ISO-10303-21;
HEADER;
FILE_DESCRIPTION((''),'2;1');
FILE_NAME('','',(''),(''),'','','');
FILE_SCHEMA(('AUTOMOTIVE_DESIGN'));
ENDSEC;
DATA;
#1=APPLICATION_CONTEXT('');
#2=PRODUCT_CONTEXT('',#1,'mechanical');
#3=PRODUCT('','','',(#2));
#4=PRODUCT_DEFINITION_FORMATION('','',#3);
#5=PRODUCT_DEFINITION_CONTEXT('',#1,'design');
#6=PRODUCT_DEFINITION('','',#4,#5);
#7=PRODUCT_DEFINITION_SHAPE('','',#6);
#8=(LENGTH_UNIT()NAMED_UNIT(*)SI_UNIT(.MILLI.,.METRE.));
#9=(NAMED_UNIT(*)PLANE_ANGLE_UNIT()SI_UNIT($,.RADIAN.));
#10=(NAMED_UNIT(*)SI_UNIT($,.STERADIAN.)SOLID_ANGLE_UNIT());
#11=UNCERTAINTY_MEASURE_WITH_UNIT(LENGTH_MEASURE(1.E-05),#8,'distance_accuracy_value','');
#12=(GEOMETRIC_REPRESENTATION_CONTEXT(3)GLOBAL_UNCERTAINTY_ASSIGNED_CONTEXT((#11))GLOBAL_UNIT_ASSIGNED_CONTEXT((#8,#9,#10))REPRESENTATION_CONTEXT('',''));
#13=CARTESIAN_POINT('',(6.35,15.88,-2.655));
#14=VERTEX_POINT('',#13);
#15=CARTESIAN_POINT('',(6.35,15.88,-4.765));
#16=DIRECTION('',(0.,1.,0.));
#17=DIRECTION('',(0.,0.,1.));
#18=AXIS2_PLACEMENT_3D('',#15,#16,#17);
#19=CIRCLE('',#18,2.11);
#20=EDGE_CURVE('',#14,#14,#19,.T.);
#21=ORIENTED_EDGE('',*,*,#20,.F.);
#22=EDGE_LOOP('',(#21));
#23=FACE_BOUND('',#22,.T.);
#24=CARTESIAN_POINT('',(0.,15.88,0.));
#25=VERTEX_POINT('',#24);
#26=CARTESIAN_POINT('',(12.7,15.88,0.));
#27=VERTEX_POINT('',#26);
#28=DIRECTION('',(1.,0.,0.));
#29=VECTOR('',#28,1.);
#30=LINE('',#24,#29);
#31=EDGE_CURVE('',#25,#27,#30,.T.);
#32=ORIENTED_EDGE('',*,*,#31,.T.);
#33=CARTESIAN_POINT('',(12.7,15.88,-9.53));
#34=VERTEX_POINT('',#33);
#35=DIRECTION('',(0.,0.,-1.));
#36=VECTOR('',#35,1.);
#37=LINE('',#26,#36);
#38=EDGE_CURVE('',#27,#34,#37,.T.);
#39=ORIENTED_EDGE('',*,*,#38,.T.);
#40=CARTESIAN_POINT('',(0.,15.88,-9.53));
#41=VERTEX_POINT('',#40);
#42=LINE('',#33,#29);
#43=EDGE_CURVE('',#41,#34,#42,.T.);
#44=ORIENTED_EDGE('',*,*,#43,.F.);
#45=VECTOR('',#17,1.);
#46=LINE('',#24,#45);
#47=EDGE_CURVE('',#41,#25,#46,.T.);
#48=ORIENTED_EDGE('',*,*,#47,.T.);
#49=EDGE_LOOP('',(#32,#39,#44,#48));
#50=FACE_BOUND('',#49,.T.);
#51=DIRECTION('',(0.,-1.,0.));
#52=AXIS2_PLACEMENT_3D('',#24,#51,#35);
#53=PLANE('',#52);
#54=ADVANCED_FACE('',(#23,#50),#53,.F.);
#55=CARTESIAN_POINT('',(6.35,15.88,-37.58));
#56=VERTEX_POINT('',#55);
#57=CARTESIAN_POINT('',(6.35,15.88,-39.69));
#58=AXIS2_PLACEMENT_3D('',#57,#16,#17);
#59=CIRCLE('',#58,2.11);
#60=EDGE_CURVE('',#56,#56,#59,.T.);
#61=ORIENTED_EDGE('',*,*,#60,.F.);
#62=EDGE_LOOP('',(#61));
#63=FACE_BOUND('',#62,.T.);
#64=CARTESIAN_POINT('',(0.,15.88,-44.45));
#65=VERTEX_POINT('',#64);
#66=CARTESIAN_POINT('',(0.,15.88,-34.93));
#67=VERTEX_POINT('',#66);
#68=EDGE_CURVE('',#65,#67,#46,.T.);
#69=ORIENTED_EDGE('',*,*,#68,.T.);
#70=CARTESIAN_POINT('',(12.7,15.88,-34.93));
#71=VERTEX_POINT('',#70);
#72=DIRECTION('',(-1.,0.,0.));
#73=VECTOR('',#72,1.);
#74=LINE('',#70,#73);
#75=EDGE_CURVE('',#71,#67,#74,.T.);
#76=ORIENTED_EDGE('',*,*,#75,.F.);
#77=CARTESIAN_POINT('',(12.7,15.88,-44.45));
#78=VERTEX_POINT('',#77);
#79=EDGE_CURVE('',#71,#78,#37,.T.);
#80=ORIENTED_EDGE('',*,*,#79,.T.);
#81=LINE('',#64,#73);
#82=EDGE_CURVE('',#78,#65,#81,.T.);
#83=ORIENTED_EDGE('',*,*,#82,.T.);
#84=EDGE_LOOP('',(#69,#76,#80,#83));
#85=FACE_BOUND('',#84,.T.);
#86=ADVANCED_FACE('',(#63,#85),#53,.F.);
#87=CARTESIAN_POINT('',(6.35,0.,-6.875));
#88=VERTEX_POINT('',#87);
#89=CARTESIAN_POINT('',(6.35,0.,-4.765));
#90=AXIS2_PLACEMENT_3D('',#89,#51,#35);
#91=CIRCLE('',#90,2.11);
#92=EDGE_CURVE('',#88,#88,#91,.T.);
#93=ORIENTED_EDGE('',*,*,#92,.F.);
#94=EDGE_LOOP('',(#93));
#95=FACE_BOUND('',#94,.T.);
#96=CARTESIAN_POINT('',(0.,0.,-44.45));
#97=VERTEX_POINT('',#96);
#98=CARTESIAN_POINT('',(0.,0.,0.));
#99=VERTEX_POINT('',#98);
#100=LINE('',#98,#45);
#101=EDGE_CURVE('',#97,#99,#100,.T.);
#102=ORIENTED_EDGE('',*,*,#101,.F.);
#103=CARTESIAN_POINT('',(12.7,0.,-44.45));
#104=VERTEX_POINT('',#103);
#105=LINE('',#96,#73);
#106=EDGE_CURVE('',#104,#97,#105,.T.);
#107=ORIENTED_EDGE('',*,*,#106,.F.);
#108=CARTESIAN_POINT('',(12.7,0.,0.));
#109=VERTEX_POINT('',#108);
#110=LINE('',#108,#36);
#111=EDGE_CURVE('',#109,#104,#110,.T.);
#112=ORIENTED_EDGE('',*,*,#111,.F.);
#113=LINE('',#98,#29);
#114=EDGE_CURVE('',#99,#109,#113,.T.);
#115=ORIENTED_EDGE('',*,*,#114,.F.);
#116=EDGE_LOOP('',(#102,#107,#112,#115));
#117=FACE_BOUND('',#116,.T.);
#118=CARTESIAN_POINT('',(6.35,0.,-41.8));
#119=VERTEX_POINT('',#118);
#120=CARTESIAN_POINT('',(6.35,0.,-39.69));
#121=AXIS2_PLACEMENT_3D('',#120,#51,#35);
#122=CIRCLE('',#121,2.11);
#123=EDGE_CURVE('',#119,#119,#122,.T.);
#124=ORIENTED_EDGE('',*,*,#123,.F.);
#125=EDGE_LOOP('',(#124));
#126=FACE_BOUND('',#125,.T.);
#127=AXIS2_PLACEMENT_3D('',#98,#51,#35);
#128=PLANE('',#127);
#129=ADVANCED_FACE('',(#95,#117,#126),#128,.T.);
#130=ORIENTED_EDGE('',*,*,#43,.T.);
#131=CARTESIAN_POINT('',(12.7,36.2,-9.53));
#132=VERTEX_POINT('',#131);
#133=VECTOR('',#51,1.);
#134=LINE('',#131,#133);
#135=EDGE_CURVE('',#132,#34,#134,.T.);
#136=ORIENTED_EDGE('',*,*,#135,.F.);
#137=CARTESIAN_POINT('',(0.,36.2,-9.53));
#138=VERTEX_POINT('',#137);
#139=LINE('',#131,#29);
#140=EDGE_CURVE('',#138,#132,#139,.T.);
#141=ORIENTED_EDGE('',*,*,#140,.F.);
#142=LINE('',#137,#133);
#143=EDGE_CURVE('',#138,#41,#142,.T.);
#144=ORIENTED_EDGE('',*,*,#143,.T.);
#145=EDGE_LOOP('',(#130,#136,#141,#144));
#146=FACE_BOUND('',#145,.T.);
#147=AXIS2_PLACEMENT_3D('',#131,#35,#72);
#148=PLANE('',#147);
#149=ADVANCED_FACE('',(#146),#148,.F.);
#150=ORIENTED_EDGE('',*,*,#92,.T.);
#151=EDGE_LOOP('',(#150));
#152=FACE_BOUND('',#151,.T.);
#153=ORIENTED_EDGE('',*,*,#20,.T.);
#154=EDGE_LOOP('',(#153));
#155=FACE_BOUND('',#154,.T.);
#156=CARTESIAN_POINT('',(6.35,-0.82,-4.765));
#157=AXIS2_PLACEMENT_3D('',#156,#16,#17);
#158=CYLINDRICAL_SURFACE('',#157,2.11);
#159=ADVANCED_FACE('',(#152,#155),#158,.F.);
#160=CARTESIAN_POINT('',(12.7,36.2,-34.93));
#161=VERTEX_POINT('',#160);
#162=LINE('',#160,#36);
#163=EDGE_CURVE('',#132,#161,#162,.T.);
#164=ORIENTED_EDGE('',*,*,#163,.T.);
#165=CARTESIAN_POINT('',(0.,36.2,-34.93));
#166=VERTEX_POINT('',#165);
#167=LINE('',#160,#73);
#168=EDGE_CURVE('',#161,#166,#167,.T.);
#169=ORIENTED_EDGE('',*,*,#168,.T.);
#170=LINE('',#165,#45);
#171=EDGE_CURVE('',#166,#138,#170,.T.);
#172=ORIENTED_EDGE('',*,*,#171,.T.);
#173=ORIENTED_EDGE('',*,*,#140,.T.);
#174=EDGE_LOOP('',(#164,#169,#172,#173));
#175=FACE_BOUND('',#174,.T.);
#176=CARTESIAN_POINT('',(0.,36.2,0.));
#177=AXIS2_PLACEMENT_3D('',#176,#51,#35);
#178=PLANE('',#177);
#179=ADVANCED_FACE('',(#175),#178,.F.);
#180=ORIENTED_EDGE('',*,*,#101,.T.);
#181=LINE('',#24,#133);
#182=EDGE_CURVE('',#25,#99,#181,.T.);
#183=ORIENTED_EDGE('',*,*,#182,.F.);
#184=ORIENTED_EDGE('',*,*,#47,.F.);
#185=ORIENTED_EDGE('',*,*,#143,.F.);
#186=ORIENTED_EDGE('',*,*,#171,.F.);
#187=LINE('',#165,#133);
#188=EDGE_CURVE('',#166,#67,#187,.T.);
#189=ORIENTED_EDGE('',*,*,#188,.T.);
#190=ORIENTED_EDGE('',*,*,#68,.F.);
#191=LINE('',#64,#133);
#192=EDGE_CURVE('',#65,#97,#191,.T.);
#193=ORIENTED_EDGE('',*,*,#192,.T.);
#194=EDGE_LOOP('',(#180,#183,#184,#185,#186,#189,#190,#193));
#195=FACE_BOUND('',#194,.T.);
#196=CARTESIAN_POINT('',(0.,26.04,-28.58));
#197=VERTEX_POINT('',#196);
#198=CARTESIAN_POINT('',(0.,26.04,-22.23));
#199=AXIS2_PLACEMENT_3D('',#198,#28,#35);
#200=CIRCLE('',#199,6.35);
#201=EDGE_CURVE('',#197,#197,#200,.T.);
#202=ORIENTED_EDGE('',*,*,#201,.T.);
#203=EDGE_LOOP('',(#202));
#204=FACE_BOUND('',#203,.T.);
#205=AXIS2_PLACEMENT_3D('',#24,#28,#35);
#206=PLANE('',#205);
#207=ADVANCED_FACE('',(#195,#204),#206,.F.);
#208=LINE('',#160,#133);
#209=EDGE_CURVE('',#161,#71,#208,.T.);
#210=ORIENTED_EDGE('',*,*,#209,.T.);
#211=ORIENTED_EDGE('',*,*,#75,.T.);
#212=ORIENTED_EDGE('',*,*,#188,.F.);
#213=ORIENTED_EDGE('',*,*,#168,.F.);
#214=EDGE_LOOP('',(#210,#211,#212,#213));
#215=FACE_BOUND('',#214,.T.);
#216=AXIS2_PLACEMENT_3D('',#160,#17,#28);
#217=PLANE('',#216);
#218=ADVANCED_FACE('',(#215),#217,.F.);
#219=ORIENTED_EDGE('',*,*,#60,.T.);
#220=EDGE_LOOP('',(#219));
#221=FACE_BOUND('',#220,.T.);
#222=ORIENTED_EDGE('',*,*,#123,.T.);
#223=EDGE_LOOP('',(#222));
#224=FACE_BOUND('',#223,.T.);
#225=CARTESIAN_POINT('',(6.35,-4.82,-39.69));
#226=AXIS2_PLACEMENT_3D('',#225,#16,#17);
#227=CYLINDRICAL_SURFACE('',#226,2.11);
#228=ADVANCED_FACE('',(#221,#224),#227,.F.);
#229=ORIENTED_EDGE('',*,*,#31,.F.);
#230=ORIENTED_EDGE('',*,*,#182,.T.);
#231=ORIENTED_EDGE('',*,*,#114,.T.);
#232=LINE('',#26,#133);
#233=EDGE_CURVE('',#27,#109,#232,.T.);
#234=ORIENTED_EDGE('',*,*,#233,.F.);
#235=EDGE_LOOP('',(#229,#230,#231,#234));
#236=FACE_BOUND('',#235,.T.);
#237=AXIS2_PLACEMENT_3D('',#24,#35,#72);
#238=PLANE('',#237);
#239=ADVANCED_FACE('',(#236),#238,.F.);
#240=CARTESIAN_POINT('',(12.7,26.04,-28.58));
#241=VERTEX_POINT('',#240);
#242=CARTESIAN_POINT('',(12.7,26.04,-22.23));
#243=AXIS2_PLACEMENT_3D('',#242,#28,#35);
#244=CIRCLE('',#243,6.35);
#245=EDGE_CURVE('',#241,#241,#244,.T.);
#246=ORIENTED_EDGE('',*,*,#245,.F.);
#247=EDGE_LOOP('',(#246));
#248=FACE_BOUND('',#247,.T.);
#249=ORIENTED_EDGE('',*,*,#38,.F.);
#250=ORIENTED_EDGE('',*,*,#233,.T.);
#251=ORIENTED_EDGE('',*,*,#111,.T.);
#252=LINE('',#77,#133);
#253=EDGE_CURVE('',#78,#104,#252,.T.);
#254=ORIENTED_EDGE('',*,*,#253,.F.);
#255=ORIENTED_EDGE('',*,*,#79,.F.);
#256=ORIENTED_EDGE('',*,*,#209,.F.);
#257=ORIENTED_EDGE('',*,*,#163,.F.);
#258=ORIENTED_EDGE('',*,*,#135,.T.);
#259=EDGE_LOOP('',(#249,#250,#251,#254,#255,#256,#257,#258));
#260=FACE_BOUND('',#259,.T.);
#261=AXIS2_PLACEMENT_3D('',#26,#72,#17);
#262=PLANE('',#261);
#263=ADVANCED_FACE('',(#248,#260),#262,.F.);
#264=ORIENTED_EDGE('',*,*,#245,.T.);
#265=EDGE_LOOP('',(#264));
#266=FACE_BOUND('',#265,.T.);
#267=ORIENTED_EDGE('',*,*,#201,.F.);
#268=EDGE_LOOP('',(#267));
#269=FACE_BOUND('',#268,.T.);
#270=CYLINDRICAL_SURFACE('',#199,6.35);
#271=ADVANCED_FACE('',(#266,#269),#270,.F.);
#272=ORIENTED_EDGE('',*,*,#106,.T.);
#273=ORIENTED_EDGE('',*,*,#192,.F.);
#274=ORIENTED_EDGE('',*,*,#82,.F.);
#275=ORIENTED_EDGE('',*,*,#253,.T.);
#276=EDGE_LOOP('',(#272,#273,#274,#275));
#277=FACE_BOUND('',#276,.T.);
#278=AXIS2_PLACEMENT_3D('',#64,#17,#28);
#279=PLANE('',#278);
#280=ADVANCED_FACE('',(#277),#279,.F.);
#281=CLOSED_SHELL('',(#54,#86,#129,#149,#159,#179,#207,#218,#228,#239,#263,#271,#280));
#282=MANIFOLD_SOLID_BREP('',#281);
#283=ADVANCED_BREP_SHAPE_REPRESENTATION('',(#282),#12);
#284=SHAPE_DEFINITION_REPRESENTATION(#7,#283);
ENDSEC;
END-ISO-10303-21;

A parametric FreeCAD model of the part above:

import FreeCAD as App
import Part
import Sketcher
from FreeCAD import Vector
Q = App.Units.Quantity

doc = App.newDocument("Part")
body = doc.addObject("PartDesign::Body", "Body")

# Sketch on XZ plane
sketch1 = body.newObject("Sketcher::SketchObject", "Sketch")
sketch1.AttachmentSupport = (doc.getObject("XZ_Plane"), [""])
sketch1.MapMode = "FlatFace"
sketch1.addGeometry([
    Part.LineSegment(Vector(0, -44, 0), Vector(0, 0, 0)),
    Part.LineSegment(Vector(0, 0, 0), Vector(13, 0, 0)),
    Part.LineSegment(Vector(13, 0, 0), Vector(13, -44, 0)),
    Part.LineSegment(Vector(13, -44, 0), Vector(0, -44, 0)),
], False)
sketch1.addConstraint([
    Sketcher.Constraint("Coincident", 0, 2, 1, 1),
    Sketcher.Constraint("Coincident", 1, 2, 2, 1),
    Sketcher.Constraint("Coincident", 2, 2, 3, 1),
    Sketcher.Constraint("Coincident", 3, 2, 0, 1),
    Sketcher.Constraint("Vertical", 0),
    Sketcher.Constraint("Horizontal", 1),
    Sketcher.Constraint("Vertical", 2),
    Sketcher.Constraint("Horizontal", 3),
    Sketcher.Constraint("Coincident", 0, 2, -1, 1),
    Sketcher.Constraint("DistanceX", 1, 1, 1, 2, Q("0.5 in")),
    Sketcher.Constraint("DistanceY", 0, 1, 0, 2, Q("1.75 in")),
])
pad1 = body.newObject("PartDesign::Pad", "Pad")
pad1.Profile = sketch1
pad1.Length = 15.88
pad1.Reversed = True

# Sketch on XZ plane
sketch2 = body.newObject("Sketcher::SketchObject", "Sketch001")
sketch2.AttachmentSupport = (doc.getObject("XZ_Plane"), [""])
sketch2.MapMode = "FlatFace"
sketch2.AttachmentOffset = App.Placement(Vector(0, 0, -15.88), App.Rotation())
sketch2.addGeometry([
    Part.LineSegment(Vector(0, -35, 0), Vector(0, -10, 0)),
    Part.LineSegment(Vector(0, -10, 0), Vector(13, -10, 0)),
    Part.LineSegment(Vector(13, -10, 0), Vector(13, -35, 0)),
    Part.LineSegment(Vector(13, -35, 0), Vector(0, -35, 0)),
], False)
sketch2.addConstraint([
    Sketcher.Constraint("Coincident", 0, 2, 1, 1),
    Sketcher.Constraint("Coincident", 1, 2, 2, 1),
    Sketcher.Constraint("Coincident", 2, 2, 3, 1),
    Sketcher.Constraint("Coincident", 3, 2, 0, 1),
    Sketcher.Constraint("Vertical", 0),
    Sketcher.Constraint("Horizontal", 1),
    Sketcher.Constraint("Vertical", 2),
    Sketcher.Constraint("Horizontal", 3),
    Sketcher.Constraint("PointOnObject", 0, 2, -2),
    Sketcher.Constraint("DistanceY", 0, 1, 0, 2, Q("1 in")),
    Sketcher.Constraint("DistanceX", 1, 1, 1, 2, Q("0.5 in")),
    Sketcher.Constraint("DistanceY", 0, 2, -1, 1, 9.53),
])
pad2 = body.newObject("PartDesign::Pad", "Pad001")
pad2.Profile = sketch2
pad2.Length = Q("0.8 in")
pad2.Reversed = True

# Sketch on YZ plane
sketch3 = body.newObject("Sketcher::SketchObject", "Sketch002")
sketch3.AttachmentSupport = (doc.getObject("YZ_Plane"), [""])
sketch3.MapMode = "FlatFace"
sketch3.AttachmentOffset = App.Placement(Vector(0, 0, 0.5 * 25.4), App.Rotation())
sketch3.addGeometry(Part.Circle(Vector(26, -22, 0), Vector(0, 0, 1), 6), False)
sketch3.addConstraint([
    Sketcher.Constraint("Diameter", 0, Q("0.5 in")),
    Sketcher.Constraint("DistanceX", -1, 1, 0, 3, 26.04),
    Sketcher.Constraint("DistanceY", 0, 3, -1, 1, 22.23),
])
pocket1 = body.newObject("PartDesign::Pocket", "Pocket")
pocket1.Profile = sketch3
pocket1.Length = Q("0.5 in")

# Sketch on XZ plane
sketch4 = body.newObject("Sketcher::SketchObject", "Sketch003")
sketch4.AttachmentSupport = (doc.getObject("XZ_Plane"), [""])
sketch4.MapMode = "FlatFace"
sketch4.AttachmentOffset = App.Placement(Vector(0, 0, -15.88), App.Rotation())
sketch4.addGeometry(Part.Circle(Vector(6.3, -39.7, 0), Vector(0, 0, 1), 2.1), False)
sketch4.addConstraint([
    Sketcher.Constraint("Diameter", 0, 4.22),
    Sketcher.Constraint("DistanceX", -1, 1, 0, 3, Q("0.25 in")),
    Sketcher.Constraint("DistanceY", 0, 3, -1, 1, 39.69),
])
pocket2 = body.newObject("PartDesign::Pocket", "Pocket001")
pocket2.Profile = sketch4
pocket2.Length = 20.7
pocket2.Reversed = True

# Sketch on XZ plane
sketch5 = body.newObject("Sketcher::SketchObject", "Sketch004")
sketch5.AttachmentSupport = (doc.getObject("XZ_Plane"), [""])
sketch5.MapMode = "FlatFace"
sketch5.AttachmentOffset = App.Placement(Vector(0, 0, -15.88), App.Rotation())
sketch5.addGeometry(Part.Circle(Vector(6.3, -4.8, 0), Vector(0, 0, 1), 2.1), False)
sketch5.addConstraint([
    Sketcher.Constraint("Diameter", 0, 4.22),
    Sketcher.Constraint("DistanceX", -1, 1, 0, 3, Q("0.25 in")),
    Sketcher.Constraint("DistanceY", 0, 3, -1, 1, 4.765),
])
pocket3 = body.newObject("PartDesign::Pocket", "Pocket002")
pocket3.Profile = sketch5
pocket3.Length = 16.7
pocket3.Reversed = True

doc.recompute()
